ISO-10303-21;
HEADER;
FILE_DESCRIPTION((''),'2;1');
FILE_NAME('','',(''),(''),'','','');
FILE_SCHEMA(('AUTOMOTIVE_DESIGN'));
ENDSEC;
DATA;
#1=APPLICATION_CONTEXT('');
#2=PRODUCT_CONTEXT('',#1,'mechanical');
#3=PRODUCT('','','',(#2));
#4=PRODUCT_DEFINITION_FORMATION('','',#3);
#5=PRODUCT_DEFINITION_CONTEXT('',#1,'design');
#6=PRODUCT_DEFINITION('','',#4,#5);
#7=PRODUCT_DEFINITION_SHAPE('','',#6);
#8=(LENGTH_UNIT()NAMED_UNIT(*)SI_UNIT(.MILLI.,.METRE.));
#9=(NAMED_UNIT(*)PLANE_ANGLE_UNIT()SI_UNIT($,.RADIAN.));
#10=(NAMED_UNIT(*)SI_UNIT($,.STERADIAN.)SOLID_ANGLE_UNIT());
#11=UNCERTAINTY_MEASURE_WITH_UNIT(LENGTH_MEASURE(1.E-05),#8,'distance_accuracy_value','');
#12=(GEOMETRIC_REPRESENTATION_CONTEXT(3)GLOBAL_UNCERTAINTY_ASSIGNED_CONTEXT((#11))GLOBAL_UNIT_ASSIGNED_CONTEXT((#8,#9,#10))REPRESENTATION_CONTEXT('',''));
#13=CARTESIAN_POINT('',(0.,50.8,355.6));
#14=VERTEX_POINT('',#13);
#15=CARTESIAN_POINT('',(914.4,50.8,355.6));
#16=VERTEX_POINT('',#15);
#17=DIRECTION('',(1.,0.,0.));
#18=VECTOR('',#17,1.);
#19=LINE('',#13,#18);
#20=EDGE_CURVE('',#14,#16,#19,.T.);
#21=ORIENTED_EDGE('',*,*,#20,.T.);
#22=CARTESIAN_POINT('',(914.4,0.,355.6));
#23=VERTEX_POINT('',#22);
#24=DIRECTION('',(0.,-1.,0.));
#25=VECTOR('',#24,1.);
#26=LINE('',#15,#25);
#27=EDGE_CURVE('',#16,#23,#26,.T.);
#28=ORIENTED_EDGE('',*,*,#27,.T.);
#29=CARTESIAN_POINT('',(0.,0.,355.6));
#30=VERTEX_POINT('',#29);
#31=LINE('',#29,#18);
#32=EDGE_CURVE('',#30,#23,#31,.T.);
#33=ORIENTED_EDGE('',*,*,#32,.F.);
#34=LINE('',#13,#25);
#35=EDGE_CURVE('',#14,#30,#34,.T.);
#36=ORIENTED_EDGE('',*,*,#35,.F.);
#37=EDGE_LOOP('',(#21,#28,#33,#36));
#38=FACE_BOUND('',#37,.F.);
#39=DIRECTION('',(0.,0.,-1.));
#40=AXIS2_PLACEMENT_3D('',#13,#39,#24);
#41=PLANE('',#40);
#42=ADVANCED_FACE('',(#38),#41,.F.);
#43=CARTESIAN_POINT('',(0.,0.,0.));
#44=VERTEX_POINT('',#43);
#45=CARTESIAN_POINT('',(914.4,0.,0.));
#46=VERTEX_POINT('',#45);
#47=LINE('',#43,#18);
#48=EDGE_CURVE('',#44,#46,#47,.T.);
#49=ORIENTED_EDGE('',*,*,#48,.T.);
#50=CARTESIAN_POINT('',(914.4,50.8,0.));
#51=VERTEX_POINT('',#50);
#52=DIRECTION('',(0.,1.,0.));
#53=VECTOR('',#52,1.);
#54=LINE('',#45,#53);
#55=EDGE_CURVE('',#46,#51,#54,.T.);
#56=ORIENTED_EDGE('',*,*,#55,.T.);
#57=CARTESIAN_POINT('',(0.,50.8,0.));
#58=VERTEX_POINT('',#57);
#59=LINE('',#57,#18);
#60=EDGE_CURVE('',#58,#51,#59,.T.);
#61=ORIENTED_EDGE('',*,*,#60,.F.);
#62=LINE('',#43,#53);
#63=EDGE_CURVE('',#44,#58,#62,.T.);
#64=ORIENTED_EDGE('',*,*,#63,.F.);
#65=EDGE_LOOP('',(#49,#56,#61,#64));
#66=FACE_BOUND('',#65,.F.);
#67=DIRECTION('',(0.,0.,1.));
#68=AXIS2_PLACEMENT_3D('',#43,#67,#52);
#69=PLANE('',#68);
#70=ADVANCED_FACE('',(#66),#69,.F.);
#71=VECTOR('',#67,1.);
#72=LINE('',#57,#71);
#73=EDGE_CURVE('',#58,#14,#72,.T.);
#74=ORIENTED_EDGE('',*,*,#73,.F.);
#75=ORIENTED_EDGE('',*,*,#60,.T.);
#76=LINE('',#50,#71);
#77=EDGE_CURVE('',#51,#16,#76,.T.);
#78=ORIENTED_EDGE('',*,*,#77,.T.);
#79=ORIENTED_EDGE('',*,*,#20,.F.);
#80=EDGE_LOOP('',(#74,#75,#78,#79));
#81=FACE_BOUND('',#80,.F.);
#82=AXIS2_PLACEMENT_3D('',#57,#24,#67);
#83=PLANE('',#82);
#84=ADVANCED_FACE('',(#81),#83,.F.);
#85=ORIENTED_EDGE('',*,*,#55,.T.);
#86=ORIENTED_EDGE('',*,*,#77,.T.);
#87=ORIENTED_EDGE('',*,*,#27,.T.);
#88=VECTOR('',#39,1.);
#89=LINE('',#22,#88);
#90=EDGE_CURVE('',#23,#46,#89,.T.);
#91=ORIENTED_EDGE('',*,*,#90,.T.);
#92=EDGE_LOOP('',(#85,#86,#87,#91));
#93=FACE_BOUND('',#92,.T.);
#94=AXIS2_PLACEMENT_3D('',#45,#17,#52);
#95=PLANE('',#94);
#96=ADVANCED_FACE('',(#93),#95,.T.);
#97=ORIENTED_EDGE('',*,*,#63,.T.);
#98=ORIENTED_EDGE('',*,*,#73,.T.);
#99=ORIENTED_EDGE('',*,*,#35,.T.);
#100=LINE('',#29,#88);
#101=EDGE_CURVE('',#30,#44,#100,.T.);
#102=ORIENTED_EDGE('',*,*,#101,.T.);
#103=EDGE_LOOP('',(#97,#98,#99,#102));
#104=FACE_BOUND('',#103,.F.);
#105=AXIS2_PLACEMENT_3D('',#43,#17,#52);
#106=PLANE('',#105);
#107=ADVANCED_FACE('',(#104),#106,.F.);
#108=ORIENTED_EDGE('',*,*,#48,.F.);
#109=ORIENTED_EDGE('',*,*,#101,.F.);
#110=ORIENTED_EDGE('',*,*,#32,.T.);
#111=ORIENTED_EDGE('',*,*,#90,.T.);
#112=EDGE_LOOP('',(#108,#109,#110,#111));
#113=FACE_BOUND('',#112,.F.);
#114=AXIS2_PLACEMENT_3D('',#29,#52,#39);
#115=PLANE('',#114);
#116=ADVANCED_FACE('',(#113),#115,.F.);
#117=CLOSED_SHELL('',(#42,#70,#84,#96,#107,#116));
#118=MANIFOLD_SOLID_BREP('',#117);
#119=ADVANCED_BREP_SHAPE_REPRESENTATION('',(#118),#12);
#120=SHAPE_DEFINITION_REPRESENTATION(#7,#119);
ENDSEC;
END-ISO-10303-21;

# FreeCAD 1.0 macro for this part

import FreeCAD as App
import Part
import Sketcher
from FreeCAD import Vector
Q = App.Units.Quantity

doc = App.newDocument("Part")
body = doc.addObject("PartDesign::Body", "Body")

sketch1 = body.newObject("Sketcher::SketchObject", "Sketch")
sketch1.AttachmentSupport = (doc.getObject("YZ_Plane"), [""])
sketch1.MapMode = "FlatFace"
sketch1.addGeometry([
    Part.LineSegment(Vector(0, 356, 0), Vector(0, 0, 0)),
    Part.LineSegment(Vector(0, 0, 0), Vector(51, 0, 0)),
    Part.LineSegment(Vector(51, 0, 0), Vector(51, 356, 0)),
    Part.LineSegment(Vector(51, 356, 0), Vector(0, 356, 0)),
], False)
sketch1.addConstraint([
    Sketcher.Constraint("Coincident", 0, 2, 1, 1),
    Sketcher.Constraint("Coincident", 1, 2, 2, 1),
    Sketcher.Constraint("Coincident", 2, 2, 3, 1),
    Sketcher.Constraint("Coincident", 3, 2, 0, 1),
    Sketcher.Constraint("Vertical", 0),
    Sketcher.Constraint("Horizontal", 1),
    Sketcher.Constraint("Vertical", 2),
    Sketcher.Constraint("Horizontal", 3),
    Sketcher.Constraint("Coincident", 0, 2, -1, 1),
    Sketcher.Constraint("DistanceX", 1, 1, 1, 2, Q("2 in")),
    Sketcher.Constraint("DistanceY", 0, 2, 0, 1, Q("14 in")),
])
pad1 = body.newObject("PartDesign::Pad", "Pad")
pad1.Profile = sketch1
pad1.Length = Q("36 in")

doc.recompute()
